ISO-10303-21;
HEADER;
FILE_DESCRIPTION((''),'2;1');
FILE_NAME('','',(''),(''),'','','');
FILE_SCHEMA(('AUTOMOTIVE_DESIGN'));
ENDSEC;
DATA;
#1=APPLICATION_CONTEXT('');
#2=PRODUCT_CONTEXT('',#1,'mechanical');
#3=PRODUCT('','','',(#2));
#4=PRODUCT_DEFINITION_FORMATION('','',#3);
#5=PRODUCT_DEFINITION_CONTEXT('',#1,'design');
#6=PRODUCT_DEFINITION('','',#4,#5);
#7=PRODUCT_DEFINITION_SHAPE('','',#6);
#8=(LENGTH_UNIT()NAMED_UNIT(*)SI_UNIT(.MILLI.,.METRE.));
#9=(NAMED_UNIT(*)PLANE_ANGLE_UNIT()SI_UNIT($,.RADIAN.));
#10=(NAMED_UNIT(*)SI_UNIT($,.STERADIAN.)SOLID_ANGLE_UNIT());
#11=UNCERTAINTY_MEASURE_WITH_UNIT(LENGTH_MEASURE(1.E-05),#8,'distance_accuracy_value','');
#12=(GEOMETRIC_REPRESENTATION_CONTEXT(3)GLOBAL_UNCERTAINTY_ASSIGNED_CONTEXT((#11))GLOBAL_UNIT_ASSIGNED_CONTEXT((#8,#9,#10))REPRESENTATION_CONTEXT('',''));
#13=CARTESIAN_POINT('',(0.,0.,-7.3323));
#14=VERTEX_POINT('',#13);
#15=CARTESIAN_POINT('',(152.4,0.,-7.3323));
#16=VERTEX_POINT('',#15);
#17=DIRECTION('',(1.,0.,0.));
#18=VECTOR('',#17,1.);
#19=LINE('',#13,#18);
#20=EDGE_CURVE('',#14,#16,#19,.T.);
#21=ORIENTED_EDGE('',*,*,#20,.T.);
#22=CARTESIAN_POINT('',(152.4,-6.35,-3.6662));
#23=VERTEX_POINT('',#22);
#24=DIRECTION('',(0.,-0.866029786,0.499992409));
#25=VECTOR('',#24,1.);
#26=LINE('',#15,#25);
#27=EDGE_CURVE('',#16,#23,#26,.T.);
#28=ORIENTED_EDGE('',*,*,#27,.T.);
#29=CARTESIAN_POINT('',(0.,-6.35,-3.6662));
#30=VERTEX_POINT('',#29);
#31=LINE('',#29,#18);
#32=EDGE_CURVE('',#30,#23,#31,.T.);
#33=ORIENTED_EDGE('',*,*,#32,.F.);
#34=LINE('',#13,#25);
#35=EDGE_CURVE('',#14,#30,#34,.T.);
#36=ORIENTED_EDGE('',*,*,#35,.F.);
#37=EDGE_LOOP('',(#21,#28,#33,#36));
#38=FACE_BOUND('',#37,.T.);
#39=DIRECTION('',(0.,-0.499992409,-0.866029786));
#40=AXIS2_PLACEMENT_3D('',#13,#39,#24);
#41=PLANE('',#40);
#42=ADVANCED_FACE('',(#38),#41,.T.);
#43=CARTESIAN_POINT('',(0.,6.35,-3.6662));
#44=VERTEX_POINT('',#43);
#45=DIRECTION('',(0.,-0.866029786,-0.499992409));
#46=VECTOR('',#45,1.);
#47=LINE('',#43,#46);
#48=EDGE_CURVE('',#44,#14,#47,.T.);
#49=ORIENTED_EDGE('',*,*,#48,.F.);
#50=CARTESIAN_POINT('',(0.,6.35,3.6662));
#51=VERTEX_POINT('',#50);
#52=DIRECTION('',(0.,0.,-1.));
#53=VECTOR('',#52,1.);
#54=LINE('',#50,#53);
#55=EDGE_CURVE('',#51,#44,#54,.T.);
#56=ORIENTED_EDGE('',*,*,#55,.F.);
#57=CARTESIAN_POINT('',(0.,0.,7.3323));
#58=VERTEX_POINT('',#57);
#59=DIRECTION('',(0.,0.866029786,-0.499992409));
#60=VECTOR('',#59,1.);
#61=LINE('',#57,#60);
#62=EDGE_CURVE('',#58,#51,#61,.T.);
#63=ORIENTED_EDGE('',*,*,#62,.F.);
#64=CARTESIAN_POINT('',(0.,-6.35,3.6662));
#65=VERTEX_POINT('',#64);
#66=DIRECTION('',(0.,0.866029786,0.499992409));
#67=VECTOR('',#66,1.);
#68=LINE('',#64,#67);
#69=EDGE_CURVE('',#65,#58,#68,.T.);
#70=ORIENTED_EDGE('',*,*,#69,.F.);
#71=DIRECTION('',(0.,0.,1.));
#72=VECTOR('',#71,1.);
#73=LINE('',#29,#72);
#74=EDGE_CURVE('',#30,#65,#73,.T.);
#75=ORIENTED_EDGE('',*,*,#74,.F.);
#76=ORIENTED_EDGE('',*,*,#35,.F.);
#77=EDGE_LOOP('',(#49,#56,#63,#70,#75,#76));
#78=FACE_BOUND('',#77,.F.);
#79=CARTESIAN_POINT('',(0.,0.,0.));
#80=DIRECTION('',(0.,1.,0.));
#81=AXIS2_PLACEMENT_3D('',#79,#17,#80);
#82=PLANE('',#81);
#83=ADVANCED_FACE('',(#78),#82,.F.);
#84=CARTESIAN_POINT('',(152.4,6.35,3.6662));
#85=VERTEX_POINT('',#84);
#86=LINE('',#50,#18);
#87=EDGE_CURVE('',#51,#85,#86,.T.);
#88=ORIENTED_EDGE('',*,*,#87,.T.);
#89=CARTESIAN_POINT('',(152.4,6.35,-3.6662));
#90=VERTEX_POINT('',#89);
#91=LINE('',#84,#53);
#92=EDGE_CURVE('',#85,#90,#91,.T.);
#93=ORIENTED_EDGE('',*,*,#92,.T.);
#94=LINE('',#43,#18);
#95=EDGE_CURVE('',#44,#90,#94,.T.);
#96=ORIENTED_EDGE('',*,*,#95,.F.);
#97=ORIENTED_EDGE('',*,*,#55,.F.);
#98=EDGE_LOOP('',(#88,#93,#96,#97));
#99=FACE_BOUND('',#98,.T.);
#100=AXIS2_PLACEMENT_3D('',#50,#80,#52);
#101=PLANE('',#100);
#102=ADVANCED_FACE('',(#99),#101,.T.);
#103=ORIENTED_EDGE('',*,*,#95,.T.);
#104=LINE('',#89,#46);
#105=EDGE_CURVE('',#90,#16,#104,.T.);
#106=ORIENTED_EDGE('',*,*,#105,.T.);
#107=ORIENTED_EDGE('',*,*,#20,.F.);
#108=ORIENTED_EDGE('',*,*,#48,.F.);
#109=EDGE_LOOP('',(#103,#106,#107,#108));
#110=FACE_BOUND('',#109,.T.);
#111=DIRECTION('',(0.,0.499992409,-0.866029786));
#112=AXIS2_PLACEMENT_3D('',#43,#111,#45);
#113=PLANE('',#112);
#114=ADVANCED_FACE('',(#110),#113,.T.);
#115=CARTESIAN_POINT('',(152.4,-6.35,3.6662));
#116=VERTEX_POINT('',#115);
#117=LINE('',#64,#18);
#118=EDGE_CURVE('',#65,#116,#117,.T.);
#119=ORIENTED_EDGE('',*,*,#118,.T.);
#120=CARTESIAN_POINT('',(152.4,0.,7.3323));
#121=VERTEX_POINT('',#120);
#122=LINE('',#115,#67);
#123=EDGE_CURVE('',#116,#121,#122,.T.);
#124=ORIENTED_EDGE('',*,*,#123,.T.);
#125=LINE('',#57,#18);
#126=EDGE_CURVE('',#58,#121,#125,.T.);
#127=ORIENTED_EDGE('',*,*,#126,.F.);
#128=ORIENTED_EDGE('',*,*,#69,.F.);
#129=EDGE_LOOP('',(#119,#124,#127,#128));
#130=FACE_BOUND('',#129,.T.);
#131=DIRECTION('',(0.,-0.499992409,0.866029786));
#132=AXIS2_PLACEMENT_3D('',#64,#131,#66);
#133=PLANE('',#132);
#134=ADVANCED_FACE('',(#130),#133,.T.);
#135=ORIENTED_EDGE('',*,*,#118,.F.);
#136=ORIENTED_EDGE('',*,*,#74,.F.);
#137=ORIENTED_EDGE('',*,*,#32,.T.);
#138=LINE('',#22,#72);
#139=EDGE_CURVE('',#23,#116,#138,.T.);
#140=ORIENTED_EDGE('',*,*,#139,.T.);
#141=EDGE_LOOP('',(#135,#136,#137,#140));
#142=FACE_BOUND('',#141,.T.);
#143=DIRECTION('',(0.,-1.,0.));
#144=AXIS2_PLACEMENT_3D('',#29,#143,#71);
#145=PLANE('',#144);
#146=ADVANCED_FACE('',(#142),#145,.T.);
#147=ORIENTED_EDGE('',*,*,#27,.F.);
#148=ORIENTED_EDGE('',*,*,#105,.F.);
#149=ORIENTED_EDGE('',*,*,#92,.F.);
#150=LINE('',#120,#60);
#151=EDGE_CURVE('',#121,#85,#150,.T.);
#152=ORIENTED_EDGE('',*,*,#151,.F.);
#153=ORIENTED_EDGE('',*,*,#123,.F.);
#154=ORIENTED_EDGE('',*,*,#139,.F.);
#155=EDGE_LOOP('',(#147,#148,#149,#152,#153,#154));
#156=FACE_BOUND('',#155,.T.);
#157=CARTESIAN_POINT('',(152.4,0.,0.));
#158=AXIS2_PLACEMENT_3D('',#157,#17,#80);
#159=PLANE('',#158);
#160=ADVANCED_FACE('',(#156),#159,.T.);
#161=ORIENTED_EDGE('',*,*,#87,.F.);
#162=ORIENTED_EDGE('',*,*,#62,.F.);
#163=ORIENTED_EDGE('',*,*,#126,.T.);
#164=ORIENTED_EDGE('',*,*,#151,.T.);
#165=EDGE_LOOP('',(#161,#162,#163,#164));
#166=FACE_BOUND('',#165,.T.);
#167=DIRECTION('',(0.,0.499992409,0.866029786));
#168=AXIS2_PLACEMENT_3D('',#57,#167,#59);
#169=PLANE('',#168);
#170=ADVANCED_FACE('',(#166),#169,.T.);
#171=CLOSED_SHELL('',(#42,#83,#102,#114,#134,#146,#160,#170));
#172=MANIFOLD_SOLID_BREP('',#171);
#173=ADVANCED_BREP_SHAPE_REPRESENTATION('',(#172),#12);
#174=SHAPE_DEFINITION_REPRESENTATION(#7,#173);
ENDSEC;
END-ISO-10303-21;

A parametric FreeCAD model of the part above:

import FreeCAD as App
import Part
import Sketcher

V = App.Vector
Q = App.Units.Quantity


def add_polygon(sketch, points):
    """Adds a closed chain of lines whose ends are joined by coincident constraints."""
    first, n = sketch.GeometryCount, len(points)
    for a, b in zip(points, points[1:] + points[:1]):
        sketch.addGeometry(Part.LineSegment(App.Vector(*a, 0), App.Vector(*b, 0)), False)
    for i in range(n):
        sketch.addConstraint(Sketcher.Constraint("Coincident", first + i, 2, first + (i + 1) % n, 1))

doc = App.newDocument("Part")
params = doc.addObject("Spreadsheet::Sheet", "Params")
for row, (alias, value) in enumerate([
    ("pad1_length", "6 in"),
], start=1):
    params.set(f"A{row}", alias)
    params.set(f"B{row}", "=" + value)
    params.setAlias(f"B{row}", alias)

body = doc.addObject("PartDesign::Body", "Body")

sketch1 = body.newObject("Sketcher::SketchObject", "Sketch")
sketch1.AttachmentSupport = (doc.getObject("YZ_Plane"), [""])
sketch1.MapMode = "FlatFace"
add_polygon(sketch1, [(6.35, 3.6662), (0, 7.3323), (-6.35, 3.6662), (-6.35, -3.6662), (0, -7.3323), (6.35, -3.6662)])
sketch1.addConstraint([
    Sketcher.Constraint("Vertical", 2),
    Sketcher.Constraint("Vertical", 5),
    Sketcher.Constraint("Symmetric", 0, 2, 3, 2, -1, 1),
    Sketcher.Constraint("Symmetric", 1, 2, 4, 2, -1, 1),
    Sketcher.Constraint("PointOnObject", 0, 2, -2),
    Sketcher.Constraint("Parallel", 0, 3),
    Sketcher.Constraint("Horizontal", 2, 2, 4, 2),
    Sketcher.Constraint("Angle", 3, Q("-29.9995 deg")),
    Sketcher.Constraint("DistanceX", 2, 2, 4, 2, Q("0.5 in")),
    Sketcher.Constraint("DistanceY", 2, 2, 0, 2, Q("0.433 in")),
])
pad1 = body.newObject("PartDesign::Pad", "Pad")
pad1.Profile = sketch1
pad1.setExpression("Length", "Params.pad1_length")

doc.recompute()
